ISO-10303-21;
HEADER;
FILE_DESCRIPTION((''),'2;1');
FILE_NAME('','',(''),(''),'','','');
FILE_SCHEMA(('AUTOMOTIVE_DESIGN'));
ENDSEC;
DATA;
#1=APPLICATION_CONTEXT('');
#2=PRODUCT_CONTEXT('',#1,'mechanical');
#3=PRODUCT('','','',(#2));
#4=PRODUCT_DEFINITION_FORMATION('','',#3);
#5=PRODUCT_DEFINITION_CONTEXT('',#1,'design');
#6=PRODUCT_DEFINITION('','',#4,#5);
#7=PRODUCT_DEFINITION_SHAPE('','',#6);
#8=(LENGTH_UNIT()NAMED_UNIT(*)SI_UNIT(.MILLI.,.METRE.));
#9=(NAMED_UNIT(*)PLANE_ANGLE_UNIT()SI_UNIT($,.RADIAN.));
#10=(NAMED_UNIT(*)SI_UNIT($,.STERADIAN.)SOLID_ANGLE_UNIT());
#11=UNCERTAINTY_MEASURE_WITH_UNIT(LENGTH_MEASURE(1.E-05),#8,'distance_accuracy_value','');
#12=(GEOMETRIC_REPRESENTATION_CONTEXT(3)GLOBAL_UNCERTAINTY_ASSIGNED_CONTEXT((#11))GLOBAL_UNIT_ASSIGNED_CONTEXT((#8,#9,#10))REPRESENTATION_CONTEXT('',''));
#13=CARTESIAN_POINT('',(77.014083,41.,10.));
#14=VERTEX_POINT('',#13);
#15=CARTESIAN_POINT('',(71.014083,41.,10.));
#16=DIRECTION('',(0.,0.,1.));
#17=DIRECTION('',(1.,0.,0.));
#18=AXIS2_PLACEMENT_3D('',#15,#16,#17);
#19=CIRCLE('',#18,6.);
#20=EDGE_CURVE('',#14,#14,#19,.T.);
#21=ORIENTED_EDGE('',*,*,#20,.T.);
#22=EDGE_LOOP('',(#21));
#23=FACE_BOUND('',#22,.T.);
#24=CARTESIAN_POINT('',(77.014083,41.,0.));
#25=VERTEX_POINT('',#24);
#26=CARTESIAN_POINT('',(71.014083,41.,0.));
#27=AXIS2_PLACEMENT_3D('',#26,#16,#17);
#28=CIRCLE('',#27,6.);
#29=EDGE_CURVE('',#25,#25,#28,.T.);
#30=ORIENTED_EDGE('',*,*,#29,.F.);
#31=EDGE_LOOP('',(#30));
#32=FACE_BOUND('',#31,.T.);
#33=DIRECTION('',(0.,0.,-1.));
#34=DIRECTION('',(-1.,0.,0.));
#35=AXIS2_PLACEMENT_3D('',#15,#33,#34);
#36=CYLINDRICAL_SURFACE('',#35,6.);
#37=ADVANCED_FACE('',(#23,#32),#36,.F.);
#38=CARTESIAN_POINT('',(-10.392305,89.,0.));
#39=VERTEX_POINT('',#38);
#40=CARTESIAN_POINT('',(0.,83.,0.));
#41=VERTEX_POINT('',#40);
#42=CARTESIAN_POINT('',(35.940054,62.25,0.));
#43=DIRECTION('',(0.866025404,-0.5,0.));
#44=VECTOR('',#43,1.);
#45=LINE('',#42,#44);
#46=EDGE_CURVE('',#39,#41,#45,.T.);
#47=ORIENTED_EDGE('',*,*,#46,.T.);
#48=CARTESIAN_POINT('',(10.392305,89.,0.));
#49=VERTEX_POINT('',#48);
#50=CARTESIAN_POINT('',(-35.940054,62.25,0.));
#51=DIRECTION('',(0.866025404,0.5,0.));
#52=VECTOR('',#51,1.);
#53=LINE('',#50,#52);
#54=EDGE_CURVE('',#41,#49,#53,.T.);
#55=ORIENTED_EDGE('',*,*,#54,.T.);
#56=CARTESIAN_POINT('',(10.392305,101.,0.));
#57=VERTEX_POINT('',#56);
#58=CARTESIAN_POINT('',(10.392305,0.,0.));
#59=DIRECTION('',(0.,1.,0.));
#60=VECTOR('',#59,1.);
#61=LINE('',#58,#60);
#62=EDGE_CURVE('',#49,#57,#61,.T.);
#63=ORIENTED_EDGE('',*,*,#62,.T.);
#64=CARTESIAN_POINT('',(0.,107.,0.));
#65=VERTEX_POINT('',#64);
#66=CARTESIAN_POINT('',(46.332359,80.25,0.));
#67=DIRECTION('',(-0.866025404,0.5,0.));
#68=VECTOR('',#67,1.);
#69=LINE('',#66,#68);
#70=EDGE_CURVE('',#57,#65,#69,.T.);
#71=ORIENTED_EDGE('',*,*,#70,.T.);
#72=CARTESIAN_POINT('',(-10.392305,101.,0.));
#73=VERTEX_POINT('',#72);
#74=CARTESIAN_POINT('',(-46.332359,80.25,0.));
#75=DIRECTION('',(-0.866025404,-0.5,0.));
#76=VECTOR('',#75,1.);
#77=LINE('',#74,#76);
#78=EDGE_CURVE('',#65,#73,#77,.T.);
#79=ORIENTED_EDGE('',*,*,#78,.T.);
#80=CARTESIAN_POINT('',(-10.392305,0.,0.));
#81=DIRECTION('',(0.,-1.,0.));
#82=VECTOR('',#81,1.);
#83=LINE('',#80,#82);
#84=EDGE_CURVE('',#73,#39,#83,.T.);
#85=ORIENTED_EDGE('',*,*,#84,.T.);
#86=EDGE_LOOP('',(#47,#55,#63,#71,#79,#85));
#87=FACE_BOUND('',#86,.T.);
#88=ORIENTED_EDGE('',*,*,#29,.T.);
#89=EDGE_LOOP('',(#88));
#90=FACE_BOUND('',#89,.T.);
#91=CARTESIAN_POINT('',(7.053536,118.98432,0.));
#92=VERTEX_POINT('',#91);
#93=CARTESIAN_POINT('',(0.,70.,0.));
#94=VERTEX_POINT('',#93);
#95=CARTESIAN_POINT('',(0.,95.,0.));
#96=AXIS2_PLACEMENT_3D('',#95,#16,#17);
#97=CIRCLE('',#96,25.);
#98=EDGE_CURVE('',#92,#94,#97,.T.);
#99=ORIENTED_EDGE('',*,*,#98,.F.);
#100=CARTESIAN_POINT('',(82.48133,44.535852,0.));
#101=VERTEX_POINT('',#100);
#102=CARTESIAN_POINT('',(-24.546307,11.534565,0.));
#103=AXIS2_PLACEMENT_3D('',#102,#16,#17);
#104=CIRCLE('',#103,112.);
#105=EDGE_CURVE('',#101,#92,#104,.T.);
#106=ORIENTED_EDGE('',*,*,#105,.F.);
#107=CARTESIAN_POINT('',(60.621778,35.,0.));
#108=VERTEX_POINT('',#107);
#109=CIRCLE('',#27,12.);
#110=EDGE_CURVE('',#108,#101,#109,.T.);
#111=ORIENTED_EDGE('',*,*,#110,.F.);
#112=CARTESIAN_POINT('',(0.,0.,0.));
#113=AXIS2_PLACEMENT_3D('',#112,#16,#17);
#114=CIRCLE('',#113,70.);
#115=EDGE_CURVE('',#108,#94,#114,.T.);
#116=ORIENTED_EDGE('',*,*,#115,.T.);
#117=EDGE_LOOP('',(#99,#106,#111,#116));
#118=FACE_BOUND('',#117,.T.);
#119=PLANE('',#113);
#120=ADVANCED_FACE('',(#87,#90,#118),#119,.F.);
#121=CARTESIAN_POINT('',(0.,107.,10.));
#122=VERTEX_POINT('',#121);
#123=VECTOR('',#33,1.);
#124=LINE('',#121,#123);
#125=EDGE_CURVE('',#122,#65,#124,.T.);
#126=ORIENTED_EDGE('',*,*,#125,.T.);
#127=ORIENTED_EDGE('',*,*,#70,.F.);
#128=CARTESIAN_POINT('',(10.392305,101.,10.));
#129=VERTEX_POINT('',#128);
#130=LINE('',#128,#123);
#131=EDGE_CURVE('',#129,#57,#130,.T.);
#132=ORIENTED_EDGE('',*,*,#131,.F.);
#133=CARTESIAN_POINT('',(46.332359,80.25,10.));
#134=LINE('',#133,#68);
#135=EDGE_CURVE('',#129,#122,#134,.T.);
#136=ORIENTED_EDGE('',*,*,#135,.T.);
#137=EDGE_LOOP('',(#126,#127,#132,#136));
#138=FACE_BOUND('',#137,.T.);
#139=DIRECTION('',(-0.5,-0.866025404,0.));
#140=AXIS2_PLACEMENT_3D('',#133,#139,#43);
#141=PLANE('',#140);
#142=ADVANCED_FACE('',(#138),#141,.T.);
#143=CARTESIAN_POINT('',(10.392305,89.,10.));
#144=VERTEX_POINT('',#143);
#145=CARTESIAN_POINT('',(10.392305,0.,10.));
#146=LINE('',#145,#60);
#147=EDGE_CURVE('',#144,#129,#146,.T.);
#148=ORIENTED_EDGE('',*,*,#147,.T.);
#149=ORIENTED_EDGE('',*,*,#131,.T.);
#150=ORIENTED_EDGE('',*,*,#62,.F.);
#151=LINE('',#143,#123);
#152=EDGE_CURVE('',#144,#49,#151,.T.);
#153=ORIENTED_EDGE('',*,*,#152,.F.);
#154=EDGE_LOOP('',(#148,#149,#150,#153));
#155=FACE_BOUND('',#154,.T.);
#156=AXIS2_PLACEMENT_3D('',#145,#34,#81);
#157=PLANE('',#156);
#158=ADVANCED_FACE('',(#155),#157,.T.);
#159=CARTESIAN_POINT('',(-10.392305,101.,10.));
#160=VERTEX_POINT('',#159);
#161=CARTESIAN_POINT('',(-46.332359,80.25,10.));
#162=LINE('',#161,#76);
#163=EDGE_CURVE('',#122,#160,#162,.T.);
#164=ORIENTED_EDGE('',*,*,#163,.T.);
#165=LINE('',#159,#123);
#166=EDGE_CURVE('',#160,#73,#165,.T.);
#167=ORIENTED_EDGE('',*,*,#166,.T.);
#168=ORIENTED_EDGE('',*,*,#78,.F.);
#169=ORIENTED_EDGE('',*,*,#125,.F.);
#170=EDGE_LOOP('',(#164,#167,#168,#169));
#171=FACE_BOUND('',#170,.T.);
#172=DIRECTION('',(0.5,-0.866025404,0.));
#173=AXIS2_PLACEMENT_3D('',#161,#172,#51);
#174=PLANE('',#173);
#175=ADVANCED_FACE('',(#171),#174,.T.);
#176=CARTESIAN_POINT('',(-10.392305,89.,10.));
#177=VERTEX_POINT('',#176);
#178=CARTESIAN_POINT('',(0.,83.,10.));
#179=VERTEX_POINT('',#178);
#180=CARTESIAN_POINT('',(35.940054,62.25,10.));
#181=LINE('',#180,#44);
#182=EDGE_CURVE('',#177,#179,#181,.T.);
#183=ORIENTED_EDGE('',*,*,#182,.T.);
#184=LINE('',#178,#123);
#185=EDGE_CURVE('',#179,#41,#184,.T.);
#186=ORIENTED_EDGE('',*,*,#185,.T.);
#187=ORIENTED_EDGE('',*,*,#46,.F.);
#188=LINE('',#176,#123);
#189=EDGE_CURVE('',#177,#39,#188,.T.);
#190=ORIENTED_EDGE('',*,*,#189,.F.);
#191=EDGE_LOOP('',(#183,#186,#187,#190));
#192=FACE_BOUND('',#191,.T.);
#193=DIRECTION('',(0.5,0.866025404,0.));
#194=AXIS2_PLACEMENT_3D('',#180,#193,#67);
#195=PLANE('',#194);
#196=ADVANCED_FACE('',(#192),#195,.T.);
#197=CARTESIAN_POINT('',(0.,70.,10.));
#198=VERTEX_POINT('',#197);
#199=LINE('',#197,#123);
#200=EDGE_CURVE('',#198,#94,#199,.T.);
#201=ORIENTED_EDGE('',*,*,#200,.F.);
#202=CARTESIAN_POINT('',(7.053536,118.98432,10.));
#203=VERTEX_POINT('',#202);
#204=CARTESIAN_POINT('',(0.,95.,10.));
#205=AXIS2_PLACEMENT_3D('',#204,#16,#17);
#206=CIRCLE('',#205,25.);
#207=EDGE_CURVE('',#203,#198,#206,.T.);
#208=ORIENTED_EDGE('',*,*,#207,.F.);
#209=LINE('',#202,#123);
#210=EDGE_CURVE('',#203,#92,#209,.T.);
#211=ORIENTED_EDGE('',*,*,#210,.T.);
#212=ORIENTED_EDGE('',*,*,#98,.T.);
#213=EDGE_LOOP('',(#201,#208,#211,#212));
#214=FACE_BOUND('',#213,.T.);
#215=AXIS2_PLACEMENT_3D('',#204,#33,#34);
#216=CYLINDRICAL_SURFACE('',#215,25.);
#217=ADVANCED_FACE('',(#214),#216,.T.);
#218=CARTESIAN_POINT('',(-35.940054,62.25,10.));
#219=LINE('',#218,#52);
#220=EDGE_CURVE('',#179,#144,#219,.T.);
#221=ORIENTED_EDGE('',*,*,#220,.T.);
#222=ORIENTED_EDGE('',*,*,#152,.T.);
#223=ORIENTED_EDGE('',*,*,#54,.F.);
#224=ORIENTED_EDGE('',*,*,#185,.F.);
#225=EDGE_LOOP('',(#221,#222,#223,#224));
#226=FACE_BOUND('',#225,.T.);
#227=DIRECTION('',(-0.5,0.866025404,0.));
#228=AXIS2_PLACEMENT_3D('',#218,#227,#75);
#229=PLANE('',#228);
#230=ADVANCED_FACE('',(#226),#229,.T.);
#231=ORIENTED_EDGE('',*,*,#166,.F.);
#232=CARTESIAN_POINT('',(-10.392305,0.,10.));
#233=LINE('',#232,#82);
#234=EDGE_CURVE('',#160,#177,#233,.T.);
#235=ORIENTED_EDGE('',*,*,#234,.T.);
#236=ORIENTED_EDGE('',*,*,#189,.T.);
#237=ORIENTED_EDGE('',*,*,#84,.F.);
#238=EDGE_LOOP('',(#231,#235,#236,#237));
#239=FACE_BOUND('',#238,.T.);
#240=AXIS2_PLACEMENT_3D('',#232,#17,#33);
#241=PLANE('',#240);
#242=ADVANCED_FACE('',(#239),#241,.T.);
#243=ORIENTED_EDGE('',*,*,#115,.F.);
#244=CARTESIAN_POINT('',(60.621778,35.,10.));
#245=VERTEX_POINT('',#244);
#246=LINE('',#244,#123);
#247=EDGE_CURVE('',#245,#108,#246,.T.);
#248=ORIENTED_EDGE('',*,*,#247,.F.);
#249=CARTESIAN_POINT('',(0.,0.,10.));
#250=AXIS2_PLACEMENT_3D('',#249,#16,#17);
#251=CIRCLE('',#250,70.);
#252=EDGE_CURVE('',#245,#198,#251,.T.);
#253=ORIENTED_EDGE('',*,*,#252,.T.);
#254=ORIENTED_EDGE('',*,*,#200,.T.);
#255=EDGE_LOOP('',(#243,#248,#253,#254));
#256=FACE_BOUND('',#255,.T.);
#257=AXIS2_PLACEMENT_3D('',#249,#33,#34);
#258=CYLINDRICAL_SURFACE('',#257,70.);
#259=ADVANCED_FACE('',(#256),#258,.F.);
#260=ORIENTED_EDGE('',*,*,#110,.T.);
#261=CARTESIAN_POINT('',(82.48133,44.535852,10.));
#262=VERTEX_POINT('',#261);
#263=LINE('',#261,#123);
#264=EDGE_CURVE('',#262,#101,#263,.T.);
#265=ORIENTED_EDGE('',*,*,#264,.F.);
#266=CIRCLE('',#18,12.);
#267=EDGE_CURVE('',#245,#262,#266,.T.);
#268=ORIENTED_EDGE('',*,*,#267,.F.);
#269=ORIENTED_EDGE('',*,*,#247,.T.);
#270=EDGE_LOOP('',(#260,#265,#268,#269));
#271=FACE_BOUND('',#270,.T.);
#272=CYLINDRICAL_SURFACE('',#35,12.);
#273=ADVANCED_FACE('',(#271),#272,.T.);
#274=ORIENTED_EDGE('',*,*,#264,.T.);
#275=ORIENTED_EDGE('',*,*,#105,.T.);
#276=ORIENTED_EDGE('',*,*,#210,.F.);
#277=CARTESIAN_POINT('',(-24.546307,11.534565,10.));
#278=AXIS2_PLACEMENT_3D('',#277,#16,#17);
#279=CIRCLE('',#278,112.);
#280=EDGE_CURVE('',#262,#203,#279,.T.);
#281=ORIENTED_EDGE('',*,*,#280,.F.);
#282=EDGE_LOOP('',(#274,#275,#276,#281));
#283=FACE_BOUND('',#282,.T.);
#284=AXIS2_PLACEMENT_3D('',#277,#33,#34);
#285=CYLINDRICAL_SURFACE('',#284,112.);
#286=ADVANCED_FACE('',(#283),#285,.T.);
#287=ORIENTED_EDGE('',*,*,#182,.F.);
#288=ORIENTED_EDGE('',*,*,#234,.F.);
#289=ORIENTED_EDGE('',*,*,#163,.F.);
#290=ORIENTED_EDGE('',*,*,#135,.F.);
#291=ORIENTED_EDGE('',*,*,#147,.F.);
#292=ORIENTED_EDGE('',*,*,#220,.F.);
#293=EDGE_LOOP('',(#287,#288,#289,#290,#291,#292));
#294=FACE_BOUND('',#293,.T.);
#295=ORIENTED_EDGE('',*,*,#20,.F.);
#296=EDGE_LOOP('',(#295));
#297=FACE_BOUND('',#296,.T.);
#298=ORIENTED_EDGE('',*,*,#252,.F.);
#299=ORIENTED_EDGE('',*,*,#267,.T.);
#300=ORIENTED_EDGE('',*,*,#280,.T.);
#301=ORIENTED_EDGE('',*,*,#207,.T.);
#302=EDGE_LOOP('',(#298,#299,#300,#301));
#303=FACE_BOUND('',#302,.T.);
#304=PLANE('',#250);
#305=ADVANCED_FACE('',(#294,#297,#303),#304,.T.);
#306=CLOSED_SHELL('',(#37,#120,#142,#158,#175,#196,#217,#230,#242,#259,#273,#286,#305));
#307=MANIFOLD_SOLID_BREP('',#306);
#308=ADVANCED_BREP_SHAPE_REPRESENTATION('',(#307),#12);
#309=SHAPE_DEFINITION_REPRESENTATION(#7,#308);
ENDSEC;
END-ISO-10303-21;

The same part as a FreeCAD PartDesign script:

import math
import FreeCAD as App
import Part
import Sketcher

V = App.Vector
Q = App.Units.Quantity

doc = App.newDocument("Part")
params = doc.addObject("Spreadsheet::Sheet", "Params")
for row, (alias, value) in enumerate([
    ("sketch1_diameter", "12 mm"),
    ("sketch1_radius", "25 mm"),
    ("sketch1_radius2", "70 mm"),
    ("sketch1_radius3", "12 mm"),
    ("sketch1_radius4", "112 mm"),
    ("pad1_length", "10 mm"),
], start=1):
    params.set(f"A{row}", alias)
    params.set(f"B{row}", "=" + value)
    params.setAlias(f"B{row}", alias)

body = doc.addObject("PartDesign::Body", "Body")

sketch1 = doc.addObject("Sketcher::SketchObject", "Sketch")
body.addObject(sketch1)
sketch1.AttachmentSupport = (doc.XY_Plane, [""])
sketch1.MapMode = "FlatFace"
sketch1.addGeometry([
    Part.ArcOfCircle(Part.Circle(V(0, 95, 0), V(0, 0, 1), 25), math.radians(74), math.radians(270)),
    Part.ArcOfCircle(Part.Circle(V(0, 0, 0), V(0, 0, 1), 70), math.radians(30), math.radians(90)),
    Part.ArcOfCircle(Part.Circle(V(71, 41, 0), V(0, 0, 1), 12), math.radians(-150), math.radians(17)),
    Part.ArcOfCircle(Part.Circle(V(-25, 12, 0), V(0, 0, 1), 112), math.radians(17), math.radians(74)),
    Part.LineSegment(V(0, 83, 0), V(-10, 89, 0)),
    Part.LineSegment(V(-10, 89, 0), V(-10, 101, 0)),
    Part.LineSegment(V(-10, 101, 0), V(0, 107, 0)),
    Part.LineSegment(V(0, 107, 0), V(10, 101, 0)),
    Part.LineSegment(V(10, 101, 0), V(10, 89, 0)),
    Part.LineSegment(V(10, 89, 0), V(0, 83, 0)),
    Part.Circle(V(71, 41, 0), V(0, 0, 1), 6),
], False)
sketch1.addConstraint([
    Sketcher.Constraint("Tangent", 0, 2, 1, 2),
    Sketcher.Constraint("Tangent", 1, 1, 2, 1),
    Sketcher.Constraint("Tangent", 2, 2, 3, 1),
    Sketcher.Constraint("Tangent", 3, 2, 0, 1),
    Sketcher.Constraint("Coincident", 4, 2, 5, 1),
    Sketcher.Constraint("Coincident", 5, 2, 6, 1),
    Sketcher.Constraint("Coincident", 6, 2, 7, 1),
    Sketcher.Constraint("Coincident", 7, 2, 8, 1),
    Sketcher.Constraint("Coincident", 8, 2, 9, 1),
    Sketcher.Constraint("Coincident", 9, 2, 4, 1),
    Sketcher.Constraint("Vertical", 5),
    Sketcher.Constraint("Vertical", 8),
    Sketcher.Constraint("Coincident", 1, 3, -1, 1),
    Sketcher.Constraint("Coincident", 10, 3, 2, 3),
    Sketcher.Constraint("Symmetric", 5, 2, 7, 2, -2),
    Sketcher.Constraint("PointOnObject", 0, 3, -2),
    Sketcher.Constraint("PointOnObject", 6, 2, -2),
    Sketcher.Constraint("PointOnObject", 9, 2, -2),
    Sketcher.Constraint("Parallel", 4, 7),
    Sketcher.Constraint("Parallel", 6, 9),
    Sketcher.Constraint("Diameter", 10, 12.0),
    Sketcher.Constraint("Radius", 0, 25.0),
    Sketcher.Constraint("Radius", 1, 70.0),
    Sketcher.Constraint("Radius", 2, 12.0),
    Sketcher.Constraint("Radius", 3, 112.0),
    Sketcher.Constraint("DistanceY", 5, 1, 5, 2, 12.0),
    Sketcher.Constraint("Angle", 4, Q("150 deg")),
    Sketcher.Constraint("Distance", 4, 12.0),
    Sketcher.Constraint("DistanceY", -1, 1, 2, 3, 41.0),
    Sketcher.Constraint("DistanceY", -1, 1, 4, 2, 89.0),
])
sketch1.setExpression("Constraints[20]", "Params.sketch1_diameter")
sketch1.setExpression("Constraints[21]", "Params.sketch1_radius")
sketch1.setExpression("Constraints[22]", "Params.sketch1_radius2")
sketch1.setExpression("Constraints[23]", "Params.sketch1_radius3")
sketch1.setExpression("Constraints[24]", "Params.sketch1_radius4")
pad1 = doc.addObject("PartDesign::Pad", "Pad")
body.addObject(pad1)
pad1.Profile = sketch1
pad1.setExpression("Length", "Params.pad1_length")

doc.recompute()
